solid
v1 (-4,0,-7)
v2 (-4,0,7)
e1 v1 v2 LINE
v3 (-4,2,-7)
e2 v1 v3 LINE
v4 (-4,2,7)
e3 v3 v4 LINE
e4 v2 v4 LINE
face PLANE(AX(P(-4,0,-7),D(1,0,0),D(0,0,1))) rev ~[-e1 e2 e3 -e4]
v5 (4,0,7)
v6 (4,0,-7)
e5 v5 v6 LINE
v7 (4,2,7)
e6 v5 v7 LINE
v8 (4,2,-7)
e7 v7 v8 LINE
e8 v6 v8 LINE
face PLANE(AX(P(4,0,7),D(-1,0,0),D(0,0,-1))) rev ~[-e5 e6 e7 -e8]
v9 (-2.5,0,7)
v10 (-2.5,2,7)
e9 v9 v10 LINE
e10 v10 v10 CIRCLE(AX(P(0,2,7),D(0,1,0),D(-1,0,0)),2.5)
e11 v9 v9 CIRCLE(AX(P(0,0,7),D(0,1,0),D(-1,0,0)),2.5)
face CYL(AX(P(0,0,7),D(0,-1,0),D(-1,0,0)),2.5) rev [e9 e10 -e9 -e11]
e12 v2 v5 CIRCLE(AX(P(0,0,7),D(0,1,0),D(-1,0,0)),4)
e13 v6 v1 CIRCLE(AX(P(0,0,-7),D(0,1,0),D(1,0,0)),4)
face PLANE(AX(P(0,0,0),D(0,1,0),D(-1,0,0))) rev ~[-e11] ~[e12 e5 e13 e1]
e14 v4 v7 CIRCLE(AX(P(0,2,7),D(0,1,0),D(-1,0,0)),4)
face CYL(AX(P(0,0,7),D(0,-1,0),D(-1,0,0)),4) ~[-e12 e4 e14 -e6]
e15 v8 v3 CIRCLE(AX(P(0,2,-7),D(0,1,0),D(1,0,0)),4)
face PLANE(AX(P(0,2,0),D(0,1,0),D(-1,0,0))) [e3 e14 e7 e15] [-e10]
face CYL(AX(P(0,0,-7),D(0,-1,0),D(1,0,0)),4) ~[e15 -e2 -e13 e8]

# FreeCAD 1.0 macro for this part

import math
import FreeCAD as App
import Part
import Sketcher

V = App.Vector

doc = App.newDocument("Part")
body = doc.addObject("PartDesign::Body", "Body")

sketch1 = body.newObject("Sketcher::SketchObject", "Sketch")
sketch1.AttachmentSupport = (doc.getObject("XZ_Plane"), [""])
sketch1.MapMode = "FlatFace"
sketch1.addGeometry(Part.ArcOfCircle(Part.Circle(V(0, 7, 0), V(0, 0, 1), 4), math.radians(0), math.radians(180)), False)
sketch1.addGeometry(Part.LineSegment(V(4, 7, 0), V(4, -7, 0)), False)
sketch1.addGeometry(Part.ArcOfCircle(Part.Circle(V(0, -7, 0), V(0, 0, 1), 4), math.radians(180), math.radians(360)), False)
sketch1.addGeometry(Part.LineSegment(V(-4, -7, 0), V(-4, 7, 0)), False)
sketch1.addGeometry(Part.Circle(V(0, 7, 0), V(0, 0, 1), 2.5), False)
sketch1.addConstraint(Sketcher.Constraint("Tangent", 0, 1, 1, 1))
sketch1.addConstraint(Sketcher.Constraint("Tangent", 1, 2, 2, 2))
sketch1.addConstraint(Sketcher.Constraint("Tangent", 2, 1, 3, 1))
sketch1.addConstraint(Sketcher.Constraint("Tangent", 3, 2, 0, 2))
sketch1.addConstraint(Sketcher.Constraint("Vertical", 1))
sketch1.addConstraint(Sketcher.Constraint("Vertical", 3))
sketch1.addConstraint(Sketcher.Constraint("Coincident", 4, 3, 0, 3))
sketch1.addConstraint(Sketcher.Constraint("Symmetric", 0, 3, 2, 3, -1, 1))
sketch1.addConstraint(Sketcher.Constraint("Diameter", 4, 5.0))
sketch1.addConstraint(Sketcher.Constraint("Radius", 0, 4.0))
sketch1.addConstraint(Sketcher.Constraint("DistanceY", 1, 2, 1, 1, 14.0))
pad1 = body.newObject("PartDesign::Pad", "Pad")
pad1.Profile = sketch1
pad1.Length = 2
pad1.Reversed = True

doc.recompute()
